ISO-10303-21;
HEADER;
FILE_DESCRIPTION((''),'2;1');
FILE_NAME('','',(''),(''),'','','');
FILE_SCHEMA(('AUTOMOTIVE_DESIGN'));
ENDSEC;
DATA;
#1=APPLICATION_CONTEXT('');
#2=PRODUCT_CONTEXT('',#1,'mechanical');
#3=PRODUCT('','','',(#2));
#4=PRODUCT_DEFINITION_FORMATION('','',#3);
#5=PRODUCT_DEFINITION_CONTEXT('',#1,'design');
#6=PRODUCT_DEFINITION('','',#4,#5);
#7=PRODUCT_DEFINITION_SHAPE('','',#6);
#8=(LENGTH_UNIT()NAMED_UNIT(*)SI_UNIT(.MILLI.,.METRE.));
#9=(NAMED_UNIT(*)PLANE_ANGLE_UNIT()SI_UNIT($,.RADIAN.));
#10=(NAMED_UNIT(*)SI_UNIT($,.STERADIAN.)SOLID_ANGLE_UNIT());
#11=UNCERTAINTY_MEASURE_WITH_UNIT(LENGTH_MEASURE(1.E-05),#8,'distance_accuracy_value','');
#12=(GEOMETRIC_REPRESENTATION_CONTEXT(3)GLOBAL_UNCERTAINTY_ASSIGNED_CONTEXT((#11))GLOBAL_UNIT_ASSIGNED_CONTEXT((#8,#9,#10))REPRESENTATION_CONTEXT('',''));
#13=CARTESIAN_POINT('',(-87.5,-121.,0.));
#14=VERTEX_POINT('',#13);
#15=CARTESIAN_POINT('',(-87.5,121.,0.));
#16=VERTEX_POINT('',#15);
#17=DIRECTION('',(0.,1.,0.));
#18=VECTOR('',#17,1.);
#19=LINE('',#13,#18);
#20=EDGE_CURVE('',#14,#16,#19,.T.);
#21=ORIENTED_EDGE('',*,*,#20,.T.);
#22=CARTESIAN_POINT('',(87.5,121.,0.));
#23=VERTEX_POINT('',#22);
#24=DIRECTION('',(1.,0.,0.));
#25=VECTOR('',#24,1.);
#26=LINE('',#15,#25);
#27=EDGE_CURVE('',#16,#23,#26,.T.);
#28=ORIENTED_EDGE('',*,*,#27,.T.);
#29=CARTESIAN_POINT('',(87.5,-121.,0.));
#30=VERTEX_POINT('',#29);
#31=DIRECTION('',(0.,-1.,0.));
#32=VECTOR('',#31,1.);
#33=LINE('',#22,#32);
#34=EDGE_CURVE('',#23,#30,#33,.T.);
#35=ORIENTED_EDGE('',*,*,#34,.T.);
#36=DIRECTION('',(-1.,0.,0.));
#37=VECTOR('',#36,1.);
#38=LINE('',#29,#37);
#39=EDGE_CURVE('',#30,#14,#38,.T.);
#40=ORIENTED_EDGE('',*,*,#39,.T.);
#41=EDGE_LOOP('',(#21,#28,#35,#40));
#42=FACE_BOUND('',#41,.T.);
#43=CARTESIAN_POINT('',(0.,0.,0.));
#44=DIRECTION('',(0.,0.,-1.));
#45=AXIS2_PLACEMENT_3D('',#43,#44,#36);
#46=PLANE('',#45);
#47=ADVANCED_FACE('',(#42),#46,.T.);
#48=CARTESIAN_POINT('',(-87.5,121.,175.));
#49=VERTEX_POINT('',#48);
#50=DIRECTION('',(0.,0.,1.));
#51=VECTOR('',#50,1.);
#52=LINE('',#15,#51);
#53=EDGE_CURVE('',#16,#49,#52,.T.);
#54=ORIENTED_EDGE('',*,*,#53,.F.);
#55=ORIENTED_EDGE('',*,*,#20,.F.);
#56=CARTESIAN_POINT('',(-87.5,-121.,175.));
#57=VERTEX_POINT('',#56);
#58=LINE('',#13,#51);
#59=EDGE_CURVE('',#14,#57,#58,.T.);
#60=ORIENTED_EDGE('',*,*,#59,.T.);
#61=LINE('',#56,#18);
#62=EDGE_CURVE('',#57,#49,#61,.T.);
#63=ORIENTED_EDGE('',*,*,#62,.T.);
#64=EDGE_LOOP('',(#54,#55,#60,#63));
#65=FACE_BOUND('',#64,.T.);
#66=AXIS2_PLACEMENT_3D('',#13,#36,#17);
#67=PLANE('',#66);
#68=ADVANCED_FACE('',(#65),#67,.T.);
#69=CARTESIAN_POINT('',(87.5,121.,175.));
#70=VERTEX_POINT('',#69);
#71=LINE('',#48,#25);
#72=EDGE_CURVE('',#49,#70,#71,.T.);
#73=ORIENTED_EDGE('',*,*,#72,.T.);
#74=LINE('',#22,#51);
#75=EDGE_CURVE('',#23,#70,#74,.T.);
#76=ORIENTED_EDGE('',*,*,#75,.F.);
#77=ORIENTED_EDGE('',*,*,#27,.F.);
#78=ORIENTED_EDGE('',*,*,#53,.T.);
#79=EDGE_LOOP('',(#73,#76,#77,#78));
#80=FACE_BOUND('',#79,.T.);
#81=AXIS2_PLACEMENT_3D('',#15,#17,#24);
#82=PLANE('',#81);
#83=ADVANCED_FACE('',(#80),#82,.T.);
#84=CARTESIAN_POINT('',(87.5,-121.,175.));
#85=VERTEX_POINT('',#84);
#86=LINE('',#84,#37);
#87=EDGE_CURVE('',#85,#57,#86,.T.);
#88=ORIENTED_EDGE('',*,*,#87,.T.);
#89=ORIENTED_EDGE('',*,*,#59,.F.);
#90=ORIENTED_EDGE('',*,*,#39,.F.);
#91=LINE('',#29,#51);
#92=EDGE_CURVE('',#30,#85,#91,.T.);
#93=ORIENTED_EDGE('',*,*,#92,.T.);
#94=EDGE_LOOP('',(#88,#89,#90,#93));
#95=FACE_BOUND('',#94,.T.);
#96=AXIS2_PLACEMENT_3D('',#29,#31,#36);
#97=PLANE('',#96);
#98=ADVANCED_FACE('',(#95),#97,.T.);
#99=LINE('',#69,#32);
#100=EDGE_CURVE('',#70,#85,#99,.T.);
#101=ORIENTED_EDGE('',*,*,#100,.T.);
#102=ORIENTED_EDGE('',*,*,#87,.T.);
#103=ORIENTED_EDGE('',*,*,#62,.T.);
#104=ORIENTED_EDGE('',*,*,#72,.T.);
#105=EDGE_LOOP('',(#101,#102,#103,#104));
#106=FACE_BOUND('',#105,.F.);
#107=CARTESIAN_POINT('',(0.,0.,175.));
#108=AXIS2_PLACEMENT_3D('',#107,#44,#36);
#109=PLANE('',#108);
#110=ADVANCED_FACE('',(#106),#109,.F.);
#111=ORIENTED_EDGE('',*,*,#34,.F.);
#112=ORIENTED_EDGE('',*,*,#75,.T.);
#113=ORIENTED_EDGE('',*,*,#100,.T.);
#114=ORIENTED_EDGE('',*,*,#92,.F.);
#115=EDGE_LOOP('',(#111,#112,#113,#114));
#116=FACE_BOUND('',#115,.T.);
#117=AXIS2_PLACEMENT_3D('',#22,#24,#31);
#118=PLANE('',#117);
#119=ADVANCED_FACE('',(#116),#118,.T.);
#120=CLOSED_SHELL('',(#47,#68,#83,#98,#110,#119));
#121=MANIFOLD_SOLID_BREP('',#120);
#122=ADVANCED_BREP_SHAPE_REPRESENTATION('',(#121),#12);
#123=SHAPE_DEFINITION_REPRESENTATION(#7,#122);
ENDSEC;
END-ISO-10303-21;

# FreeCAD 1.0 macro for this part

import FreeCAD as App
import Part
import Sketcher


def add_polygon(sketch, points):
    """Adds a closed chain of lines whose ends are joined by coincident constraints."""
    first, n = sketch.GeometryCount, len(points)
    for a, b in zip(points, points[1:] + points[:1]):
        sketch.addGeometry(Part.LineSegment(App.Vector(*a, 0), App.Vector(*b, 0)), False)
    for i in range(n):
        sketch.addConstraint(Sketcher.Constraint("Coincident", first + i, 2, first + (i + 1) % n, 1))

doc = App.newDocument("Part")
body = doc.addObject("PartDesign::Body", "Body")

sketch1 = body.newObject("Sketcher::SketchObject", "Sketch")
sketch1.AttachmentSupport = (doc.getObject("XY_Plane"), [""])
sketch1.MapMode = "FlatFace"
add_polygon(sketch1, [(-88, -121), (88, -121), (88, 121), (-88, 121)])
sketch1.addConstraint([
    Sketcher.Constraint("Horizontal", 0),
    Sketcher.Constraint("Vertical", 1),
    Sketcher.Constraint("Horizontal", 2),
    Sketcher.Constraint("Vertical", 3),
    Sketcher.Constraint("Symmetric", 0, 2, 2, 2, -1, 1),
    Sketcher.Constraint("DistanceX", 0, 1, 0, 2, 175.0),
    Sketcher.Constraint("DistanceY", 1, 1, 1, 2, 242.0),
])
pad1 = body.newObject("PartDesign::Pad", "Pad")
pad1.Profile = sketch1
pad1.Length = 175

doc.recompute()
